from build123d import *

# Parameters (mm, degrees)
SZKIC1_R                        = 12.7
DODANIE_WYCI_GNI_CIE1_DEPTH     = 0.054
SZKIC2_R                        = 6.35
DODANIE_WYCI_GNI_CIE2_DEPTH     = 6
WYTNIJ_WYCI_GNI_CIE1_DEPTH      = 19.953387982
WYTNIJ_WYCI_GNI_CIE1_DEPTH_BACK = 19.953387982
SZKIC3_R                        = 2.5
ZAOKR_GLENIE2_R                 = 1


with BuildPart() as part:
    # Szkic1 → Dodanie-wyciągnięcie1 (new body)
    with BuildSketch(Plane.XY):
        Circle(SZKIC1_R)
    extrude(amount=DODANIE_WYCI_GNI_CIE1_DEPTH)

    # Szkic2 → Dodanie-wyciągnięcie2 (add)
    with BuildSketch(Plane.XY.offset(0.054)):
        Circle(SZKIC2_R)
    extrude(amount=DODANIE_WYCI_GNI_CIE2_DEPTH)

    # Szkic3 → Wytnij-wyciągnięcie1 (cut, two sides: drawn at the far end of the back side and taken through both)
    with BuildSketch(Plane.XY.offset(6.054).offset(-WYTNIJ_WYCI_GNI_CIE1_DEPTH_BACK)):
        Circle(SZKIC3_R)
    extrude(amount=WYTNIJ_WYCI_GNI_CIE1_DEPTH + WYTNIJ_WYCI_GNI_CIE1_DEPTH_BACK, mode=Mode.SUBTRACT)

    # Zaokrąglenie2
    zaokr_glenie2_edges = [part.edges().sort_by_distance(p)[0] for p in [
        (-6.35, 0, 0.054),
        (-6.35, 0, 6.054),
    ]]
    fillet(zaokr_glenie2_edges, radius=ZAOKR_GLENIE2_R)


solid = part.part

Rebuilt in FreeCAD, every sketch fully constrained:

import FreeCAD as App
import Part
import Sketcher


def edges_at(feature, points):
    """Names of the edges that pass closest to the given points."""
    edges = feature.Shape.Edges
    near = lambda p: min(range(len(edges)), key=lambda i: edges[i].distToShape(Part.Vertex(*p))[0])
    return sorted({f"Edge{near(p) + 1}" for p in points})

doc = App.newDocument("Part")
body = doc.addObject("PartDesign::Body", "Body")

# Sketch on XY plane
sketch1 = body.newObject("Sketcher::SketchObject", "Sketch")
sketch1.AttachmentSupport = (doc.getObject("XY_Plane"), [""])
sketch1.MapMode = "FlatFace"
sketch1.addGeometry(Part.Circle(App.Vector(0, 0, 0), App.Vector(0, 0, 1), 13), False)
sketch1.addConstraint(Sketcher.Constraint("Coincident", 0, 3, -1, 1))
sketch1.addConstraint(Sketcher.Constraint("Diameter", 0, 25.4))
pad1 = body.newObject("PartDesign::Pad", "Pad")
pad1.Profile = sketch1
pad1.Length = 0.054

# Sketch on XY plane
sketch2 = body.newObject("Sketcher::SketchObject", "Sketch001")
sketch2.AttachmentSupport = (doc.getObject("XY_Plane"), [""])
sketch2.MapMode = "FlatFace"
sketch2.AttachmentOffset = App.Placement(App.Vector(0, 0, 0.054), App.Rotation())
sketch2.addGeometry(Part.Circle(App.Vector(0, 0, 0), App.Vector(0, 0, 1), 6), False)
sketch2.addConstraint(Sketcher.Constraint("Coincident", 0, 3, -1, 1))
sketch2.addConstraint(Sketcher.Constraint("Diameter", 0, 12.7))
pad2 = body.newObject("PartDesign::Pad", "Pad001")
pad2.Profile = sketch2
pad2.Length = 6

# Sketch on XY plane
sketch3 = body.newObject("Sketcher::SketchObject", "Sketch002")
sketch3.AttachmentSupport = (doc.getObject("XY_Plane"), [""])
sketch3.MapMode = "FlatFace"
sketch3.AttachmentOffset = App.Placement(App.Vector(0, 0, 6.054), App.Rotation())
sketch3.addGeometry(Part.Circle(App.Vector(0, 0, 0), App.Vector(0, 0, 1), 2.5), False)
sketch3.addConstraint(Sketcher.Constraint("Coincident", 0, 3, -1, 1))
sketch3.addConstraint(Sketcher.Constraint("Diameter", 0, 5.0))
pocket1 = body.newObject("PartDesign::Pocket", "Pocket")
pocket1.Profile = sketch3
pocket1.Type = "ThroughAll"
pocket1.Midplane = True
doc.recompute()

fillet = body.newObject("PartDesign::Fillet", "Fillet")
fillet.Base = (pocket1, edges_at(pocket1, [(-6.35, 0, 0.054), (-6.35, 0, 6.054)]))
fillet.Radius = 1

doc.recompute()
